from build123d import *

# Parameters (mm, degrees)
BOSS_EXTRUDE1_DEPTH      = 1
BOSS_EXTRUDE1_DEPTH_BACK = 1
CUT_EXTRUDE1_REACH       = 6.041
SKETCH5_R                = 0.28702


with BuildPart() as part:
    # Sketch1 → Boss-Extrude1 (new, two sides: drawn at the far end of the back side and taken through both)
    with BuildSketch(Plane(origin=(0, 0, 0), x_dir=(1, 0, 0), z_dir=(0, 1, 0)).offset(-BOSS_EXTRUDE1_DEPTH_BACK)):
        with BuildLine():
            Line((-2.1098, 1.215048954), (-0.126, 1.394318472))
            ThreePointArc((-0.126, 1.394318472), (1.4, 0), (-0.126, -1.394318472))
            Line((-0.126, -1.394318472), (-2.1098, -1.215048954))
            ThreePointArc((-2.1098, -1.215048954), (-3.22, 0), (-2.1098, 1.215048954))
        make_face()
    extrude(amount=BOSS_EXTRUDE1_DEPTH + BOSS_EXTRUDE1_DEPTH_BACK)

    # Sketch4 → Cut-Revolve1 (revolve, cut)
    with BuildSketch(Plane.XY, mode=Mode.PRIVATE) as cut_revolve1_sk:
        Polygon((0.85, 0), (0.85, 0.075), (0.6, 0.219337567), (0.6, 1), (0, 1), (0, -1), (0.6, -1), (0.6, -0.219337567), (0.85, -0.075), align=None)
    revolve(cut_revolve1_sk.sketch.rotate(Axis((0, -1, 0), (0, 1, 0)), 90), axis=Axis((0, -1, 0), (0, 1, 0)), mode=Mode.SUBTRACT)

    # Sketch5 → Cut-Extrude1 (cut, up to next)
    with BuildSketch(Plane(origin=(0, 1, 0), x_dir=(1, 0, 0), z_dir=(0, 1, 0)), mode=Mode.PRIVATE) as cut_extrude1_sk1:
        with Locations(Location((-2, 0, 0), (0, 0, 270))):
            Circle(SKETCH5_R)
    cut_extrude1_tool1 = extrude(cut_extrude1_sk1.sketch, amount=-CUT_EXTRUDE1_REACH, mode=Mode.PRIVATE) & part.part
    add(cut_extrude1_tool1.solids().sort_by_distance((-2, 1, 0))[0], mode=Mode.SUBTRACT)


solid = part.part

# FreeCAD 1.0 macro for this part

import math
import FreeCAD as App
import Part
import Sketcher
from FreeCAD import Vector
Q = App.Units.Quantity


def add_polygon(sketch, points):
    """Adds a closed chain of lines whose ends are joined by coincident constraints."""
    first, n = sketch.GeometryCount, len(points)
    for a, b in zip(points, points[1:] + points[:1]):
        sketch.addGeometry(Part.LineSegment(App.Vector(*a, 0), App.Vector(*b, 0)), False)
    for i in range(n):
        sketch.addConstraint(Sketcher.Constraint("Coincident", first + i, 2, first + (i + 1) % n, 1))

doc = App.newDocument("Part")
body = doc.addObject("PartDesign::Body", "Body")

sketch1 = body.newObject("Sketcher::SketchObject", "Sketch")
sketch1.AttachmentSupport = (doc.getObject("XZ_Plane"), [""])
sketch1.MapMode = "FlatFace"
sketch1.addGeometry([
    Part.LineSegment(Vector(-0.1, -1.4, 0), Vector(-2.1, -1.2, 0)),
    Part.ArcOfCircle(Part.Circle(Vector(-2, 0, 0), Vector(0, 0, 1), 1.2), math.radians(95), math.radians(265)),
    Part.LineSegment(Vector(-2.1, 1.2, 0), Vector(-0.1, 1.4, 0)),
    Part.ArcOfCircle(Part.Circle(Vector(0, 0, 0), Vector(0, 0, 1), 1.4), math.radians(-95), math.radians(95)),
], False)
sketch1.addConstraint([
    Sketcher.Constraint("Tangent", 0, 2, 1, 2),
    Sketcher.Constraint("Tangent", 1, 1, 2, 1),
    Sketcher.Constraint("Tangent", 2, 2, 3, 2),
    Sketcher.Constraint("Tangent", 3, 1, 0, 1),
    Sketcher.Constraint("Coincident", 3, 3, -1, 1),
    Sketcher.Constraint("PointOnObject", 1, 3, -1),
    Sketcher.Constraint("Radius", 3, 1.4),
    Sketcher.Constraint("Radius", 1, 1.22),
    Sketcher.Constraint("DistanceX", 1, 3, -1, 1, 2.0),
])
pad1 = body.newObject("PartDesign::Pad", "Pad")
pad1.Profile = sketch1
pad1.Type = "TwoLengths"
pad1.Length = 1
pad1.Length2 = 1
pad1.Reversed = True

sketch2 = body.newObject("Sketcher::SketchObject", "Sketch001")
sketch2.AttachmentSupport = (doc.getObject("XY_Plane"), [""])
sketch2.MapMode = "FlatFace"
add_polygon(sketch2, [(0.85, 0.07), (0.6, 0.22), (0.6, 1), (0, 1), (0, -1), (0.6, -1), (0.6, -0.22), (0.85, -0.07)])
sketch2.addConstraint([
    Sketcher.Constraint("Vertical", 1),
    Sketcher.Constraint("Horizontal", 2),
    Sketcher.Constraint("Vertical", 3),
    Sketcher.Constraint("Horizontal", 4),
    Sketcher.Constraint("Vertical", 5),
    Sketcher.Constraint("Vertical", 7),
    Sketcher.Constraint("Symmetric", 2, 2, 3, 2, -1, 1),
    Sketcher.Constraint("Symmetric", 0, 2, 5, 2, -1),
    Sketcher.Constraint("Equal", 0, 6),
    Sketcher.Constraint("DistanceY", 3, 2, 3, 1, 2.0),
    Sketcher.Constraint("Angle", 0, Q("150 deg")),
    Sketcher.Constraint("DistanceX", 2, 2, 2, 1, 0.6),
    Sketcher.Constraint("DistanceY", 7, 1, 7, 2, 0.15),
    Sketcher.Constraint("DistanceX", -1, 1, 6, 2, 0.85),
])
groove = body.newObject("PartDesign::Groove", "Groove")
groove.Profile = sketch2
groove.ReferenceAxis = (sketch2, ["V_Axis"])
groove.Angle = 360

sketch3 = body.newObject("Sketcher::SketchObject", "Sketch002")
sketch3.AttachmentSupport = (doc.getObject("XZ_Plane"), [""])
sketch3.MapMode = "FlatFace"
sketch3.AttachmentOffset = App.Placement(Vector(0, 0, -1), App.Rotation())
sketch3.addGeometry(Part.Circle(Vector(-2, 0, 0), Vector(0, 0, 1), 0.29), False)
sketch3.addConstraint([
    Sketcher.Constraint("PointOnObject", 0, 3, -1),
    Sketcher.Constraint("DistanceX", 0, 3, -1, 1, 2.0),
    Sketcher.Constraint("Diameter", 0, 0.57404),
])
pocket1 = body.newObject("PartDesign::Pocket", "Pocket")
pocket1.Profile = sketch3
pocket1.Type = "UpToFirst"
pocket1.Reversed = True

doc.recompute()
